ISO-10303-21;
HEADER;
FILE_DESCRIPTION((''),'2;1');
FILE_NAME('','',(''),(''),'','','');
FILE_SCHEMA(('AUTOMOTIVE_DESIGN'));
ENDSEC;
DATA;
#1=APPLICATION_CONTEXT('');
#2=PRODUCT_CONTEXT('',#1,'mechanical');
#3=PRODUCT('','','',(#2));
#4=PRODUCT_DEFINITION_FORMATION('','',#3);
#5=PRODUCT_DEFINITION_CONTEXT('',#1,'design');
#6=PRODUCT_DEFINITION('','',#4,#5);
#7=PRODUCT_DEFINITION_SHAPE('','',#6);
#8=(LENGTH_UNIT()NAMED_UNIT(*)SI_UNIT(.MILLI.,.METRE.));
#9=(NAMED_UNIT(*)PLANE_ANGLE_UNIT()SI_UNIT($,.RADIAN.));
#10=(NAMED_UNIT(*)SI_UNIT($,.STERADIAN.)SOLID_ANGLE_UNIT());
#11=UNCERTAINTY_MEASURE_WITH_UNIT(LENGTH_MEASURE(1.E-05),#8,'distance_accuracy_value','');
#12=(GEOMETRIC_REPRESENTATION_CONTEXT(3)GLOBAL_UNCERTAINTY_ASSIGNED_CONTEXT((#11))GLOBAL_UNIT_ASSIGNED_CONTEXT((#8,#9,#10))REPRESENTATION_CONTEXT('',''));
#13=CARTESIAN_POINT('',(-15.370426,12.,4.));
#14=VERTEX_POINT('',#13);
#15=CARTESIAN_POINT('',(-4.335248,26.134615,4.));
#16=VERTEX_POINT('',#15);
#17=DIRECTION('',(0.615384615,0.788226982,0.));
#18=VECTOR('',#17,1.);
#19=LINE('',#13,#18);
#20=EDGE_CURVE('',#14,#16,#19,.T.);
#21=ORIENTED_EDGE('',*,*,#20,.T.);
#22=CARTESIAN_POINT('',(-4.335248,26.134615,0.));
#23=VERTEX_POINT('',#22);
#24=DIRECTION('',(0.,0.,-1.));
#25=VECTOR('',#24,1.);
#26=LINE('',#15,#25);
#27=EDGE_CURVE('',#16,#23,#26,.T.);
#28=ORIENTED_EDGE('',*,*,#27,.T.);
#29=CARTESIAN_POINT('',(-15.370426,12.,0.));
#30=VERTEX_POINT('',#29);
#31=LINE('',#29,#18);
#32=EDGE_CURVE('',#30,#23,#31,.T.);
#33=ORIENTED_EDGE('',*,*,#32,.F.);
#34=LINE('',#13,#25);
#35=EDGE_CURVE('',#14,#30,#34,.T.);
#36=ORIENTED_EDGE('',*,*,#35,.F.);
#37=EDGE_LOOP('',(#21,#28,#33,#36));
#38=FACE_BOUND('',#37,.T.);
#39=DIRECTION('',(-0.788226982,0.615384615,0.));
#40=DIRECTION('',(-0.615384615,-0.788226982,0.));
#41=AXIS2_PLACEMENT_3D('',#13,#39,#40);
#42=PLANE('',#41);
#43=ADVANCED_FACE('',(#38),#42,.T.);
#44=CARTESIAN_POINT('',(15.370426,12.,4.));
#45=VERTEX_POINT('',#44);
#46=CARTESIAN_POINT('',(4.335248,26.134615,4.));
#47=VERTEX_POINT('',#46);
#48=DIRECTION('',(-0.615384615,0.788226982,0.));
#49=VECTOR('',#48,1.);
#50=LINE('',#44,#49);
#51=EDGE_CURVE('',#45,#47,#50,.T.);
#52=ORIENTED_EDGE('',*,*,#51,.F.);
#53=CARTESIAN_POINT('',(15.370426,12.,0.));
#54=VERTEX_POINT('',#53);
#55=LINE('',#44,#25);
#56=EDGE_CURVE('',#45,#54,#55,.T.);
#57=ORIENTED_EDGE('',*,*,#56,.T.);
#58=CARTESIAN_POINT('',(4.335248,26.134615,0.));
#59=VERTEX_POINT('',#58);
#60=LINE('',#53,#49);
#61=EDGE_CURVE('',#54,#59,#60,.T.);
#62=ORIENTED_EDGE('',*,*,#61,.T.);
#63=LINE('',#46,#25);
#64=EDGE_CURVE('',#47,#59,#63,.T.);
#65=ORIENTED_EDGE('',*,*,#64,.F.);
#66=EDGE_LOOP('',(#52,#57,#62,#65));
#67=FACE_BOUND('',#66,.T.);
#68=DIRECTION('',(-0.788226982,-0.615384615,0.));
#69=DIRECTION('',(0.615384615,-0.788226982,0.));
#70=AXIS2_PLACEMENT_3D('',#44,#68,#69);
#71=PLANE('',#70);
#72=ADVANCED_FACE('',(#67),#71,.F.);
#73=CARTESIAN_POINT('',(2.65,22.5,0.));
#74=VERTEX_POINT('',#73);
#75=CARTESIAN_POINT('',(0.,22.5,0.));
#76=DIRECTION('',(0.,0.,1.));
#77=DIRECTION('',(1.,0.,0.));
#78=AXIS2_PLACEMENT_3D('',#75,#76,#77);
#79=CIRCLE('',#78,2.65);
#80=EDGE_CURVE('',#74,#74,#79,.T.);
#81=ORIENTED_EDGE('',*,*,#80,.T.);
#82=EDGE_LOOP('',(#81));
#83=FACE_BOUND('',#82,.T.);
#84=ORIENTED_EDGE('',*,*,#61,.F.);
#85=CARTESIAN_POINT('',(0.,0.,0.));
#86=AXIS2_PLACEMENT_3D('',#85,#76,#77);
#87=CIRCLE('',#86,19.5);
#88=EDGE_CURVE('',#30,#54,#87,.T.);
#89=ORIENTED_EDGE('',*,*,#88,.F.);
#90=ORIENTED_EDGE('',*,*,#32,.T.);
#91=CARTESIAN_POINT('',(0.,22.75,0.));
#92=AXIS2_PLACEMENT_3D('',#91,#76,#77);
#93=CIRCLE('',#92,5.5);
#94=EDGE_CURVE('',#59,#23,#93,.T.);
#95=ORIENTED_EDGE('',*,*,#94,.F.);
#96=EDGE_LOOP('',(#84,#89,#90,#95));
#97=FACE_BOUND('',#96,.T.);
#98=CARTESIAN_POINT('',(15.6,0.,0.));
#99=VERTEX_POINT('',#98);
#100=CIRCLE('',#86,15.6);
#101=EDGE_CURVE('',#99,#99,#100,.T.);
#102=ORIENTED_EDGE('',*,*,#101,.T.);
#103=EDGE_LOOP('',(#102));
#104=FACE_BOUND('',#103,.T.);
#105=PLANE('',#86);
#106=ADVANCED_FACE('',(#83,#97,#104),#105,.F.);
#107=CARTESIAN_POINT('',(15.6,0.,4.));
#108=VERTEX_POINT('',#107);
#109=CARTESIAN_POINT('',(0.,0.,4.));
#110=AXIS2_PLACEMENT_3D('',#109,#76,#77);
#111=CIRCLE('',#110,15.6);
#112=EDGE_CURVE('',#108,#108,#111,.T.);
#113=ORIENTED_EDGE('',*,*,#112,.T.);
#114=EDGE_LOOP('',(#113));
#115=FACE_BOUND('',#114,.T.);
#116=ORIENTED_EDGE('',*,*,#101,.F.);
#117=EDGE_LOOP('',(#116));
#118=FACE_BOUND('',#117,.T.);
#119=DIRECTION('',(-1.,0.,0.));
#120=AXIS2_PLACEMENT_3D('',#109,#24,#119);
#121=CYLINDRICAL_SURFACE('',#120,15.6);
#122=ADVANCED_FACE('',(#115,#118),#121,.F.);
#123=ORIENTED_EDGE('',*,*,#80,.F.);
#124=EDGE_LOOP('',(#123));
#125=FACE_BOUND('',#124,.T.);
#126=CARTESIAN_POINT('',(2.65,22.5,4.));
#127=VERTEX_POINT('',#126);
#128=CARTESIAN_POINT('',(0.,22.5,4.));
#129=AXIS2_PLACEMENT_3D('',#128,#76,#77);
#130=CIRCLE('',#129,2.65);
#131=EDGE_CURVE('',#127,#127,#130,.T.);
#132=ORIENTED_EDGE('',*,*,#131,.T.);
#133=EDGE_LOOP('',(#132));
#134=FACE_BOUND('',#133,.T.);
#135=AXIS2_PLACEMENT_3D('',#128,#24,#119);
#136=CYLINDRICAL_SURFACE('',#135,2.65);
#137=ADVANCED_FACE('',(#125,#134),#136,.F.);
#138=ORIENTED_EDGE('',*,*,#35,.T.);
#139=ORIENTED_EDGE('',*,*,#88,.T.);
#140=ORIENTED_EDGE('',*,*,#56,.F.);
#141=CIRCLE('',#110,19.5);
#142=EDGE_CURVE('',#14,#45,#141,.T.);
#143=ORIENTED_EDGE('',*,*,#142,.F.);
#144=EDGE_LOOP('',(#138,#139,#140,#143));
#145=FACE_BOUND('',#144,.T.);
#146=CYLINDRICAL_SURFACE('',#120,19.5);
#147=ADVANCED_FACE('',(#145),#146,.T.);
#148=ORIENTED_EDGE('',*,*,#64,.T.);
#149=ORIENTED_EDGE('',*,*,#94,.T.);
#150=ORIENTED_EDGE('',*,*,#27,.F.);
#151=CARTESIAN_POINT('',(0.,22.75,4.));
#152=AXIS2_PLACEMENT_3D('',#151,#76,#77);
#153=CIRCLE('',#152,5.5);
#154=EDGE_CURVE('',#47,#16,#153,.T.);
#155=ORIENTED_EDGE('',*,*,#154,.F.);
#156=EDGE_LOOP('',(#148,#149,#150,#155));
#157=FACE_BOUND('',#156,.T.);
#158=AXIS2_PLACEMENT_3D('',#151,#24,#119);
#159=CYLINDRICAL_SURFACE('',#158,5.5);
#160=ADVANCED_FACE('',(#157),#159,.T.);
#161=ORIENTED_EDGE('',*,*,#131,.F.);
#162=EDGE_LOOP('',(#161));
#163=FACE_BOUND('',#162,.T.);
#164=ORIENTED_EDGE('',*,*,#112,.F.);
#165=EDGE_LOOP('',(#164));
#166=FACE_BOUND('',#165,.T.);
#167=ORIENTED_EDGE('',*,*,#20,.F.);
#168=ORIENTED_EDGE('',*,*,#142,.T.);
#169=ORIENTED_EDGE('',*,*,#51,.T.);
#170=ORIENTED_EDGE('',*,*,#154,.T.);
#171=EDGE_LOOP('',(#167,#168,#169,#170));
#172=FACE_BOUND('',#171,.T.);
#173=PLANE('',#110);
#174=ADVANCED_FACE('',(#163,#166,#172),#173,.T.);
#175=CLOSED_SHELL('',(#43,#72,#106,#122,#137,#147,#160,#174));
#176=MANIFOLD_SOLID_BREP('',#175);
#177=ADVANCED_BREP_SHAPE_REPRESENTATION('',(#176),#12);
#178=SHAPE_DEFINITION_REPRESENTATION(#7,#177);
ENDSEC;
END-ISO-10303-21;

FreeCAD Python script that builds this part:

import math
import FreeCAD as App
import Part
import Sketcher

V = App.Vector

doc = App.newDocument("Part")
body = doc.addObject("PartDesign::Body", "Body")

# Sketch on XY plane
sketch1 = doc.addObject("Sketcher::SketchObject", "Sketch")
body.addObject(sketch1)
sketch1.AttachmentSupport = (doc.XY_Plane, [""])
sketch1.MapMode = "FlatFace"
sketch1.addGeometry([
    Part.Circle(V(0, 0, 0), V(0, 0, 1), 19.5),
    Part.Circle(V(0, 0, 0), V(0, 0, 1), 15.6),
], False)
sketch1.addConstraint([
    Sketcher.Constraint("Coincident", 0, 3, -1, 1),
    Sketcher.Constraint("Coincident", 1, 3, -1, 1),
    Sketcher.Constraint("Diameter", 0, 39.0),
    Sketcher.Constraint("Diameter", 1, 31.2),
])
pad1 = doc.addObject("PartDesign::Pad", "Pad")
body.addObject(pad1)
pad1.Profile = sketch1
pad1.Length = 4

# Sketch on XY plane
sketch2 = doc.addObject("Sketcher::SketchObject", "Sketch001")
body.addObject(sketch2)
sketch2.AttachmentSupport = (doc.XY_Plane, [""])
sketch2.MapMode = "FlatFace"
sketch2.addGeometry([
    Part.LineSegment(V(-4.335248, 26.134615, 0), V(-15.370426, 12, 0)),  # 0
    Part.ArcOfCircle(Part.Circle(V(0, 0, 0), V(0, 0, 1), 19.5), math.radians(37.979872), math.radians(142.020128)),  # 1
    Part.LineSegment(V(15.370426, 12, 0), V(4.335248, 26.134615, 0)),  # 2
    Part.ArcOfCircle(Part.Circle(V(0, 22.75, 0), V(0, 0, 1), 5.5), math.radians(37.979872), math.radians(142.020128)),  # 3
    Part.Circle(V(0, 22.5, 0), V(0, 0, 1), 2.65),  # 4
], False)
sketch2.addConstraint([
    Sketcher.Constraint("Tangent", 0, 2, 1, 2),
    Sketcher.Constraint("Tangent", 1, 1, 2, 1),
    Sketcher.Constraint("Tangent", 2, 2, 3, 1),
    Sketcher.Constraint("Tangent", 3, 2, 0, 1),
    Sketcher.Constraint("Coincident", 1, 3, -1, 1),
    Sketcher.Constraint("PointOnObject", 3, 3, -2),
    Sketcher.Constraint("PointOnObject", 4, 3, -2),
    Sketcher.Constraint("Diameter", 4, 5.3),
    Sketcher.Constraint("Radius", 1, 19.5),
    Sketcher.Constraint("Radius", 3, 5.5),
    Sketcher.Constraint("DistanceY", -1, 1, 0, 2, 12.0),
    Sketcher.Constraint("DistanceY", -1, 1, 4, 3, 22.5),
])
pad2 = doc.addObject("PartDesign::Pad", "Pad001")
body.addObject(pad2)
pad2.Profile = sketch2
pad2.Length = 4

doc.recompute()
